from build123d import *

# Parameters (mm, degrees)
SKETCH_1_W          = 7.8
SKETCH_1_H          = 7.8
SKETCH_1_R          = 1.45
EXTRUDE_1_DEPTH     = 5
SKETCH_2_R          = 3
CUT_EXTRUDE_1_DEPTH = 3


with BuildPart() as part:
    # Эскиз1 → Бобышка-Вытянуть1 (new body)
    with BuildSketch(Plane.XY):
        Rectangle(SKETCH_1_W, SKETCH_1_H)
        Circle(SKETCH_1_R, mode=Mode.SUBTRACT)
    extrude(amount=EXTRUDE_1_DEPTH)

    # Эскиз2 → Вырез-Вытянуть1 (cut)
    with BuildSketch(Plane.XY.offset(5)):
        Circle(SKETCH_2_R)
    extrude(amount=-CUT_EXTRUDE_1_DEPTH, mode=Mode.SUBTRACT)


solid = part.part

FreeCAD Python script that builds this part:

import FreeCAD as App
import Part
import Sketcher
Q = App.Units.Quantity

doc = App.newDocument("Part")
body = doc.addObject("PartDesign::Body", "Body")

sketch1 = body.newObject("Sketcher::SketchObject", "Sketch")
sketch1.AttachmentSupport = (doc.getObject("XY_Plane"), [""])
sketch1.MapMode = "FlatFace"
sketch1.addGeometry(Part.LineSegment(App.Vector(-3.9, 3.9, 0), App.Vector(-3.9, -3.9, 0)), False)
sketch1.addGeometry(Part.LineSegment(App.Vector(-3.9, -3.9, 0), App.Vector(3.9, -3.9, 0)), False)
sketch1.addGeometry(Part.LineSegment(App.Vector(3.9, -3.9, 0), App.Vector(3.9, 3.9, 0)), False)
sketch1.addGeometry(Part.LineSegment(App.Vector(3.9, 3.9, 0), App.Vector(-3.9, 3.9, 0)), False)
sketch1.addGeometry(Part.Circle(App.Vector(0, 0, 0), App.Vector(0, 0, 1), 1.45), False)
sketch1.addConstraint(Sketcher.Constraint("Coincident", 0, 2, 1, 1))
sketch1.addConstraint(Sketcher.Constraint("Coincident", 1, 2, 2, 1))
sketch1.addConstraint(Sketcher.Constraint("Coincident", 2, 2, 3, 1))
sketch1.addConstraint(Sketcher.Constraint("Coincident", 3, 2, 0, 1))
sketch1.addConstraint(Sketcher.Constraint("Vertical", 0))
sketch1.addConstraint(Sketcher.Constraint("Horizontal", 1))
sketch1.addConstraint(Sketcher.Constraint("Vertical", 2))
sketch1.addConstraint(Sketcher.Constraint("Horizontal", 3))
sketch1.addConstraint(Sketcher.Constraint("Coincident", 4, 3, -1, 1))
sketch1.addConstraint(Sketcher.Constraint("Symmetric", 0, 2, 2, 2, -1, 1))
sketch1.addConstraint(Sketcher.Constraint("Equal", 3, 0))
sketch1.addConstraint(Sketcher.Constraint("Diameter", 4, Q("2.9 mm")))
sketch1.addConstraint(Sketcher.Constraint("DistanceX", 1, 1, 1, 2, Q("7.8 mm")))
pad1 = body.newObject("PartDesign::Pad", "Pad")
pad1.Profile = sketch1
pad1.Length = 5

sketch2 = body.newObject("Sketcher::SketchObject", "Sketch001")
sketch2.AttachmentSupport = (doc.getObject("XY_Plane"), [""])
sketch2.MapMode = "FlatFace"
sketch2.AttachmentOffset = App.Placement(App.Vector(0, 0, 5), App.Rotation())
sketch2.addGeometry(Part.Circle(App.Vector(0, 0, 0), App.Vector(0, 0, 1), 3), False)
sketch2.addConstraint(Sketcher.Constraint("Coincident", 0, 3, -1, 1))
sketch2.addConstraint(Sketcher.Constraint("Diameter", 0, Q("6 mm")))
pocket1 = body.newObject("PartDesign::Pocket", "Pocket")
pocket1.Profile = sketch2
pocket1.Length = 3

doc.recompute()
